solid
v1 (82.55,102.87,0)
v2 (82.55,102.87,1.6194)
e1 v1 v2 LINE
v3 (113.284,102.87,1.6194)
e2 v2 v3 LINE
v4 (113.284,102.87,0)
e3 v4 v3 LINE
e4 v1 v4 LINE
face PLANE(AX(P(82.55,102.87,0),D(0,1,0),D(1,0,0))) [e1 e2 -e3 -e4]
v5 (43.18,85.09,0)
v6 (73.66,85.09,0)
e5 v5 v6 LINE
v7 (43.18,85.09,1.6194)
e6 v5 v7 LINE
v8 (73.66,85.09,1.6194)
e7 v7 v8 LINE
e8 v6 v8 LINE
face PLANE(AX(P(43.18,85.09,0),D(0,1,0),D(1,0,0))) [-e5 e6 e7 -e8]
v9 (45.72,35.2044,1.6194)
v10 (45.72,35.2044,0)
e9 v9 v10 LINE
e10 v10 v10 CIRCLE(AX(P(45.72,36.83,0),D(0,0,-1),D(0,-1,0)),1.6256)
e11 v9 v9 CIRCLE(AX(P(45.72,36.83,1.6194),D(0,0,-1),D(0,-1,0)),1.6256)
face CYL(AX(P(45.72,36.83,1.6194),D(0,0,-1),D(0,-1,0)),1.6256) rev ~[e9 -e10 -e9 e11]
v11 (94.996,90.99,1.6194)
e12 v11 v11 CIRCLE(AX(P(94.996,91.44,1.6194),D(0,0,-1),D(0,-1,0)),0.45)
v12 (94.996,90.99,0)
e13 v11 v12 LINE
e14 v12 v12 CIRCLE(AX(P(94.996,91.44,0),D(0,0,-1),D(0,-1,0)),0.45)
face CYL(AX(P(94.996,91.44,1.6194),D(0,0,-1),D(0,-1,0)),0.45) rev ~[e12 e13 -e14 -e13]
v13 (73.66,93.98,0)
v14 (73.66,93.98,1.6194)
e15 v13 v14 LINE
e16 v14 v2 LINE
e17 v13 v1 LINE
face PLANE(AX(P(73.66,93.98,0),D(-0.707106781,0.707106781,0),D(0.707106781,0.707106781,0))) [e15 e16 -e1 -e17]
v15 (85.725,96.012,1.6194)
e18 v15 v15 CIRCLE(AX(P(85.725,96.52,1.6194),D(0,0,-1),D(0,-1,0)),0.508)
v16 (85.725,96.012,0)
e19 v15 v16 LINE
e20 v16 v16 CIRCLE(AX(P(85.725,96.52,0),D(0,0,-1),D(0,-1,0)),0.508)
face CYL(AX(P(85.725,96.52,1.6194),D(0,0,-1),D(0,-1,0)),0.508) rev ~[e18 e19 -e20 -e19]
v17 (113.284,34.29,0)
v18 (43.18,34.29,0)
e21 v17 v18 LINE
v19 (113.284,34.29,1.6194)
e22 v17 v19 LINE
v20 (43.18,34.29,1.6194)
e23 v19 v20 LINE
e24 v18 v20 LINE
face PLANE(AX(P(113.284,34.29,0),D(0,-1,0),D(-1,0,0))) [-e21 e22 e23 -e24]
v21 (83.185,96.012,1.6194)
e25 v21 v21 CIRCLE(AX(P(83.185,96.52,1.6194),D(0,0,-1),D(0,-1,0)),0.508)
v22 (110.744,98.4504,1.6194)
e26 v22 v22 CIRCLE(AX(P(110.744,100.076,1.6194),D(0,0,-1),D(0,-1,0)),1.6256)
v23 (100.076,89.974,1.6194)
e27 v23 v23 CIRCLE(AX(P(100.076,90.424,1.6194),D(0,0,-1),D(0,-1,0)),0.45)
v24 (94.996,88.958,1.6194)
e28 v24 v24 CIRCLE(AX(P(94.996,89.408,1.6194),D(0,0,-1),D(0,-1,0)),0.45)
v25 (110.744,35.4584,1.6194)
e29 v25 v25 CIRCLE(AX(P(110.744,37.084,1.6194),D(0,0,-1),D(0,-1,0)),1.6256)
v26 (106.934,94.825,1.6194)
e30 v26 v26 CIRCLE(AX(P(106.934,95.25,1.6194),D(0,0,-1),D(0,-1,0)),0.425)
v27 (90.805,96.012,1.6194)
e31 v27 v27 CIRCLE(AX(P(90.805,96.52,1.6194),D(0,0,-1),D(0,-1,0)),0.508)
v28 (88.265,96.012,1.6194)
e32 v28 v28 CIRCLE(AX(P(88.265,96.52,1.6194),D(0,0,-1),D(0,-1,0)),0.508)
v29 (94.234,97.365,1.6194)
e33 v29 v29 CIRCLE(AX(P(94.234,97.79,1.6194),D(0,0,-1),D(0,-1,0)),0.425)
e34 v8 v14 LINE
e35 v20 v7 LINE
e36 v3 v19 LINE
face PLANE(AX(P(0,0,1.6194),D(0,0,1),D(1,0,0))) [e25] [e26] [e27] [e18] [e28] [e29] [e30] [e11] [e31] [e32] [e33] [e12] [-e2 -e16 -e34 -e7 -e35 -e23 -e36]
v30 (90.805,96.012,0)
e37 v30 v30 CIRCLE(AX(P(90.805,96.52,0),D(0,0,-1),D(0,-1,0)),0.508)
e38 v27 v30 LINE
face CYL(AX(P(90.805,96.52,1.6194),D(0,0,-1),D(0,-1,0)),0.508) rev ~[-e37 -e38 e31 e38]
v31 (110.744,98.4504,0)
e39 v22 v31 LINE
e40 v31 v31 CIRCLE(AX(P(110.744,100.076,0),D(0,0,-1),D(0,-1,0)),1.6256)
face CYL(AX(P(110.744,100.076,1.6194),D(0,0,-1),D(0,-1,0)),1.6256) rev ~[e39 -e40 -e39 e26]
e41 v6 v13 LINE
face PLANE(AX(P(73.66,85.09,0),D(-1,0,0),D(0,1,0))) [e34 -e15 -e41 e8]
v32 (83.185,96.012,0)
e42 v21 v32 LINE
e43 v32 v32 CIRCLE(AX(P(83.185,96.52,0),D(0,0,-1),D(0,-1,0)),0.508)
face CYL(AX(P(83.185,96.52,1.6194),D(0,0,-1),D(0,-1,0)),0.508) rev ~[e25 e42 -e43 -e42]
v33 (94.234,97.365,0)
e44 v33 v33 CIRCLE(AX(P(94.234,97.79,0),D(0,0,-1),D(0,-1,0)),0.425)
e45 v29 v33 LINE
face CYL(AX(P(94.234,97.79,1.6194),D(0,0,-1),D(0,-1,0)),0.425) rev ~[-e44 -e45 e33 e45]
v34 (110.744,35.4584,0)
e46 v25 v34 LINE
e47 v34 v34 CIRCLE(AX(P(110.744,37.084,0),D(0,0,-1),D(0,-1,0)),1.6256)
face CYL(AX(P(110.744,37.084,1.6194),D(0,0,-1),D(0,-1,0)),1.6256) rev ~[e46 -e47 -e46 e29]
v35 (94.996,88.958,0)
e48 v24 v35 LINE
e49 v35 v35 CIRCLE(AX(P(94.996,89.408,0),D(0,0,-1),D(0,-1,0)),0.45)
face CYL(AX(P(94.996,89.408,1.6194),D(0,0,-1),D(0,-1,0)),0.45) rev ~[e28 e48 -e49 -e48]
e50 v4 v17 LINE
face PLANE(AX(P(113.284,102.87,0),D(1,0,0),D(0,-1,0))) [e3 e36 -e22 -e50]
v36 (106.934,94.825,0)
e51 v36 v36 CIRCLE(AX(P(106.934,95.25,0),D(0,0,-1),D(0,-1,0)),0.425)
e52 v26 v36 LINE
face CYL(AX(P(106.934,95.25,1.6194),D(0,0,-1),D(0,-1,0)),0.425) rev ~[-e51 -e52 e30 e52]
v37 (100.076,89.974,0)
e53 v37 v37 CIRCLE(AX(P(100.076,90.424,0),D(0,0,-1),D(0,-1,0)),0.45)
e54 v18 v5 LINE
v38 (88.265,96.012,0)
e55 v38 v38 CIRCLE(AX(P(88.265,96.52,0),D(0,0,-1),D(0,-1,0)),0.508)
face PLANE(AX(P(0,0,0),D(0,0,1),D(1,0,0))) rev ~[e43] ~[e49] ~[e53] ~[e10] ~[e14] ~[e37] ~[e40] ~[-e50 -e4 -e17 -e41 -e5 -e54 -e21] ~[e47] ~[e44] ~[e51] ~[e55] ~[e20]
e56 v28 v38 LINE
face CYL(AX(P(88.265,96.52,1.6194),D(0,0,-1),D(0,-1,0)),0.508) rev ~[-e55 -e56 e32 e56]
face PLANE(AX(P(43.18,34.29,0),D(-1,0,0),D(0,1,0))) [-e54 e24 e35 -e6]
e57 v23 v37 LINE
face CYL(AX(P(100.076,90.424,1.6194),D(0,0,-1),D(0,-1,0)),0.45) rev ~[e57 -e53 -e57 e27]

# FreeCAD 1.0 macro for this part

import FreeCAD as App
import Part
import Sketcher
from FreeCAD import Vector
Q = App.Units.Quantity

doc = App.newDocument("Part")
body = doc.addObject("PartDesign::Body", "Body")

# Sketch on XY plane
sketch1 = body.newObject("Sketcher::SketchObject", "Sketch")
sketch1.AttachmentSupport = (doc.getObject("XY_Plane"), [""])
sketch1.MapMode = "FlatFace"
sketch1.addGeometry([
    Part.LineSegment(Vector(43.18, 85.09, 0), Vector(43.18, 34.29, 0)),  # 0
    Part.LineSegment(Vector(43.18, 34.29, 0), Vector(113.284, 34.29, 0)),  # 1
    Part.LineSegment(Vector(113.284, 34.29, 0), Vector(113.284, 102.87, 0)),  # 2
    Part.LineSegment(Vector(113.284, 102.87, 0), Vector(82.55, 102.87, 0)),  # 3
    Part.LineSegment(Vector(82.55, 102.87, 0), Vector(73.66, 93.98, 0)),  # 4
    Part.LineSegment(Vector(73.66, 93.98, 0), Vector(73.66, 85.09, 0)),  # 5
    Part.LineSegment(Vector(73.66, 85.09, 0), Vector(43.18, 85.09, 0)),  # 6
], False)
sketch1.addConstraint([
    Sketcher.Constraint("Coincident", 0, 2, 1, 1),
    Sketcher.Constraint("Coincident", 1, 2, 2, 1),
    Sketcher.Constraint("Coincident", 2, 2, 3, 1),
    Sketcher.Constraint("Coincident", 3, 2, 4, 1),
    Sketcher.Constraint("Coincident", 4, 2, 5, 1),
    Sketcher.Constraint("Coincident", 5, 2, 6, 1),
    Sketcher.Constraint("Coincident", 6, 2, 0, 1),
    Sketcher.Constraint("Vertical", 0),
    Sketcher.Constraint("Horizontal", 1),
    Sketcher.Constraint("Vertical", 2),
    Sketcher.Constraint("Horizontal", 3),
    Sketcher.Constraint("Vertical", 5),
    Sketcher.Constraint("Horizontal", 6),
    Sketcher.Constraint("DistanceY", 0, 2, 0, 1, Q("2 in")),
    Sketcher.Constraint("DistanceX", 6, 2, 6, 1, Q("1.2 in")),
    Sketcher.Constraint("DistanceY", 2, 1, 2, 2, Q("2.7 in")),
    Sketcher.Constraint("Angle", 4, Q("-135 deg")),
    Sketcher.Constraint("DistanceX", 1, 1, 1, 2, Q("2.76 in")),
    Sketcher.Constraint("DistanceX", 3, 2, 3, 1, Q("1.21 in")),
    Sketcher.Constraint("DistanceX", -1, 1, 0, 2, Q("1.7 in")),
    Sketcher.Constraint("DistanceY", -1, 1, 4, 2, Q("3.7 in")),
])
pad1 = body.newObject("PartDesign::Pad", "Pad")
pad1.Profile = sketch1
pad1.Length = 1.6194

# Sketch on XY plane
sketch2 = body.newObject("Sketcher::SketchObject", "Sketch001")
sketch2.AttachmentSupport = (doc.getObject("XY_Plane"), [""])
sketch2.MapMode = "FlatFace"
sketch2.AttachmentOffset = App.Placement(Vector(0, 0, 1.6194), App.Rotation())
sketch2.addGeometry(Part.Circle(Vector(94.234, 97.79, 0), Vector(0, 0, 1), 0.425), False)
sketch2.addConstraint([
    Sketcher.Constraint("Diameter", 0, 0.85),
    Sketcher.Constraint("DistanceX", -1, 1, 0, 3, Q("3.71 in")),
    Sketcher.Constraint("DistanceY", -1, 1, 0, 3, Q("3.85 in")),
])
doc.recompute()
hole = body.newObject("PartDesign::Hole", "Hole")
hole.Profile = sketch2
hole.ThreadType = "None"
hole.Diameter = 0.85
hole.DepthType = "ThroughAll"

# Sketch on XY plane
sketch3 = body.newObject("Sketcher::SketchObject", "Sketch002")
sketch3.AttachmentSupport = (doc.getObject("XY_Plane"), [""])
sketch3.MapMode = "FlatFace"
sketch3.AttachmentOffset = App.Placement(Vector(0, 0, 1.6194), App.Rotation())
sketch3.addGeometry(Part.Circle(Vector(106.934, 95.25, 0), Vector(0, 0, 1), 0.425), False)
sketch3.addConstraint([
    Sketcher.Constraint("Diameter", 0, 0.85),
    Sketcher.Constraint("DistanceX", -1, 1, 0, 3, Q("4.21 in")),
    Sketcher.Constraint("DistanceY", -1, 1, 0, 3, Q("3.75 in")),
])
doc.recompute()
hole2 = body.newObject("PartDesign::Hole", "Hole001")
hole2.Profile = sketch3
hole2.ThreadType = "None"
hole2.Diameter = 0.85
hole2.DepthType = "ThroughAll"

# Sketch on XY plane
sketch4 = body.newObject("Sketcher::SketchObject", "Sketch003")
sketch4.AttachmentSupport = (doc.getObject("XY_Plane"), [""])
sketch4.MapMode = "FlatFace"
sketch4.AttachmentOffset = App.Placement(Vector(0, 0, 1.6194), App.Rotation())
sketch4.addGeometry(Part.Circle(Vector(45.72, 36.83, 0), Vector(0, 0, 1), 1.6256), False)
sketch4.addConstraint([
    Sketcher.Constraint("Diameter", 0, Q("0.128 in")),
    Sketcher.Constraint("DistanceX", -1, 1, 0, 3, Q("1.8 in")),
    Sketcher.Constraint("DistanceY", -1, 1, 0, 3, Q("1.45 in")),
])
doc.recompute()
hole3 = body.newObject("PartDesign::Hole", "Hole002")
hole3.Profile = sketch4
hole3.ThreadType = "None"
hole3.Diameter = Q("0.128 in")
hole3.DepthType = "ThroughAll"

# Sketch on XY plane
sketch5 = body.newObject("Sketcher::SketchObject", "Sketch004")
sketch5.AttachmentSupport = (doc.getObject("XY_Plane"), [""])
sketch5.MapMode = "FlatFace"
sketch5.AttachmentOffset = App.Placement(Vector(0, 0, 1.6194), App.Rotation())
sketch5.addGeometry(Part.Circle(Vector(110.744, 37.084, 0), Vector(0, 0, 1), 1.6256), False)
sketch5.addConstraint([
    Sketcher.Constraint("Diameter", 0, Q("0.128 in")),
    Sketcher.Constraint("DistanceX", -1, 1, 0, 3, Q("4.36 in")),
    Sketcher.Constraint("DistanceY", -1, 1, 0, 3, Q("1.46 in")),
])
doc.recompute()
hole4 = body.newObject("PartDesign::Hole", "Hole003")
hole4.Profile = sketch5
hole4.ThreadType = "None"
hole4.Diameter = Q("0.128 in")
hole4.DepthType = "ThroughAll"

# Sketch on XY plane
sketch6 = body.newObject("Sketcher::SketchObject", "Sketch005")
sketch6.AttachmentSupport = (doc.getObject("XY_Plane"), [""])
sketch6.MapMode = "FlatFace"
sketch6.AttachmentOffset = App.Placement(Vector(0, 0, 1.6194), App.Rotation())
sketch6.addGeometry(Part.Circle(Vector(110.744, 100.076, 0), Vector(0, 0, 1), 1.6256), False)
sketch6.addConstraint([
    Sketcher.Constraint("Diameter", 0, Q("0.128 in")),
    Sketcher.Constraint("DistanceX", -1, 1, 0, 3, Q("4.36 in")),
    Sketcher.Constraint("DistanceY", -1, 1, 0, 3, Q("3.94 in")),
])
doc.recompute()
hole5 = body.newObject("PartDesign::Hole", "Hole004")
hole5.Profile = sketch6
hole5.ThreadType = "None"
hole5.Diameter = Q("0.128 in")
hole5.DepthType = "ThroughAll"

# Sketch on XY plane
sketch7 = body.newObject("Sketcher::SketchObject", "Sketch006")
sketch7.AttachmentSupport = (doc.getObject("XY_Plane"), [""])
sketch7.MapMode = "FlatFace"
sketch7.AttachmentOffset = App.Placement(Vector(0, 0, 1.6194), App.Rotation())
sketch7.addGeometry(Part.Circle(Vector(90.805, 96.52, 0), Vector(0, 0, 1), 0.508), False)
sketch7.addConstraint([
    Sketcher.Constraint("Diameter", 0, Q("0.04 in")),
    Sketcher.Constraint("DistanceY", -1, 1, 0, 3, Q("3.8 in")),
    Sketcher.Constraint("DistanceX", -1, 1, 0, 3, Q("3.575 in")),
])
doc.recompute()
hole6 = body.newObject("PartDesign::Hole", "Hole005")
hole6.Profile = sketch7
hole6.ThreadType = "None"
hole6.Diameter = Q("0.04 in")
hole6.DepthType = "ThroughAll"

# Sketch on XY plane
sketch8 = body.newObject("Sketcher::SketchObject", "Sketch007")
sketch8.AttachmentSupport = (doc.getObject("XY_Plane"), [""])
sketch8.MapMode = "FlatFace"
sketch8.AttachmentOffset = App.Placement(Vector(0, 0, 1.6194), App.Rotation())
sketch8.addGeometry(Part.Circle(Vector(88.265, 96.52, 0), Vector(0, 0, 1), 0.508), False)
sketch8.addConstraint([
    Sketcher.Constraint("Diameter", 0, Q("0.04 in")),
    Sketcher.Constraint("DistanceY", -1, 1, 0, 3, Q("3.8 in")),
    Sketcher.Constraint("DistanceX", -1, 1, 0, 3, Q("3.475 in")),
])
doc.recompute()
hole7 = body.newObject("PartDesign::Hole", "Hole006")
hole7.Profile = sketch8
hole7.ThreadType = "None"
hole7.Diameter = Q("0.04 in")
hole7.DepthType = "ThroughAll"

# Sketch on XY plane
sketch9 = body.newObject("Sketcher::SketchObject", "Sketch008")
sketch9.AttachmentSupport = (doc.getObject("XY_Plane"), [""])
sketch9.MapMode = "FlatFace"
sketch9.AttachmentOffset = App.Placement(Vector(0, 0, 1.6194), App.Rotation())
sketch9.addGeometry(Part.Circle(Vector(85.725, 96.52, 0), Vector(0, 0, 1), 0.508), False)
sketch9.addConstraint([
    Sketcher.Constraint("Diameter", 0, Q("0.04 in")),
    Sketcher.Constraint("DistanceY", -1, 1, 0, 3, Q("3.8 in")),
    Sketcher.Constraint("DistanceX", -1, 1, 0, 3, Q("3.375 in")),
])
doc.recompute()
hole8 = body.newObject("PartDesign::Hole", "Hole007")
hole8.Profile = sketch9
hole8.ThreadType = "None"
hole8.Diameter = Q("0.04 in")
hole8.DepthType = "ThroughAll"

# Sketch on XY plane
sketch10 = body.newObject("Sketcher::SketchObject", "Sketch009")
sketch10.AttachmentSupport = (doc.getObject("XY_Plane"), [""])
sketch10.MapMode = "FlatFace"
sketch10.AttachmentOffset = App.Placement(Vector(0, 0, 1.6194), App.Rotation())
sketch10.addGeometry(Part.Circle(Vector(83.185, 96.52, 0), Vector(0, 0, 1), 0.508), False)
sketch10.addConstraint([
    Sketcher.Constraint("Diameter", 0, Q("0.04 in")),
    Sketcher.Constraint("DistanceY", -1, 1, 0, 3, Q("3.8 in")),
    Sketcher.Constraint("DistanceX", -1, 1, 0, 3, Q("3.275 in")),
])
doc.recompute()
hole9 = body.newObject("PartDesign::Hole", "Hole008")
hole9.Profile = sketch10
hole9.ThreadType = "None"
hole9.Diameter = Q("0.04 in")
hole9.DepthType = "ThroughAll"

# Sketch on XY plane
sketch11 = body.newObject("Sketcher::SketchObject", "Sketch010")
sketch11.AttachmentSupport = (doc.getObject("XY_Plane"), [""])
sketch11.MapMode = "FlatFace"
sketch11.AttachmentOffset = App.Placement(Vector(0, 0, 1.6194), App.Rotation())
sketch11.addGeometry(Part.Circle(Vector(94.996, 91.44, 0), Vector(0, 0, 1), 0.45), False)
sketch11.addConstraint([
    Sketcher.Constraint("DistanceY", -1, 1, 0, 3, Q("3.6 in")),
    Sketcher.Constraint("Diameter", 0, 0.9),
    Sketcher.Constraint("DistanceX", -1, 1, 0, 3, Q("3.74 in")),
])
doc.recompute()
hole10 = body.newObject("PartDesign::Hole", "Hole009")
hole10.Profile = sketch11
hole10.ThreadType = "None"
hole10.Diameter = 0.9
hole10.DepthType = "ThroughAll"

# Sketch on XY plane
sketch12 = body.newObject("Sketcher::SketchObject", "Sketch011")
sketch12.AttachmentSupport = (doc.getObject("XY_Plane"), [""])
sketch12.MapMode = "FlatFace"
sketch12.AttachmentOffset = App.Placement(Vector(0, 0, 1.6194), App.Rotation())
sketch12.addGeometry(Part.Circle(Vector(94.996, 89.408, 0), Vector(0, 0, 1), 0.45), False)
sketch12.addConstraint([
    Sketcher.Constraint("Diameter", 0, 0.9),
    Sketcher.Constraint("DistanceX", -1, 1, 0, 3, Q("3.74 in")),
    Sketcher.Constraint("DistanceY", -1, 1, 0, 3, Q("3.52 in")),
])
doc.recompute()
hole11 = body.newObject("PartDesign::Hole", "Hole010")
hole11.Profile = sketch12
hole11.ThreadType = "None"
hole11.Diameter = 0.9
hole11.DepthType = "ThroughAll"

# Sketch on XY plane
sketch13 = body.newObject("Sketcher::SketchObject", "Sketch012")
sketch13.AttachmentSupport = (doc.getObject("XY_Plane"), [""])
sketch13.MapMode = "FlatFace"
sketch13.AttachmentOffset = App.Placement(Vector(0, 0, 1.6194), App.Rotation())
sketch13.addGeometry(Part.Circle(Vector(100.076, 90.424, 0), Vector(0, 0, 1), 0.45), False)
sketch13.addConstraint([
    Sketcher.Constraint("Diameter", 0, 0.9),
    Sketcher.Constraint("DistanceX", -1, 1, 0, 3, Q("3.94 in")),
    Sketcher.Constraint("DistanceY", -1, 1, 0, 3, Q("3.56 in")),
])
doc.recompute()
hole12 = body.newObject("PartDesign::Hole", "Hole011")
hole12.Profile = sketch13
hole12.ThreadType = "None"
hole12.Diameter = 0.9
hole12.DepthType = "ThroughAll"

doc.recompute()
